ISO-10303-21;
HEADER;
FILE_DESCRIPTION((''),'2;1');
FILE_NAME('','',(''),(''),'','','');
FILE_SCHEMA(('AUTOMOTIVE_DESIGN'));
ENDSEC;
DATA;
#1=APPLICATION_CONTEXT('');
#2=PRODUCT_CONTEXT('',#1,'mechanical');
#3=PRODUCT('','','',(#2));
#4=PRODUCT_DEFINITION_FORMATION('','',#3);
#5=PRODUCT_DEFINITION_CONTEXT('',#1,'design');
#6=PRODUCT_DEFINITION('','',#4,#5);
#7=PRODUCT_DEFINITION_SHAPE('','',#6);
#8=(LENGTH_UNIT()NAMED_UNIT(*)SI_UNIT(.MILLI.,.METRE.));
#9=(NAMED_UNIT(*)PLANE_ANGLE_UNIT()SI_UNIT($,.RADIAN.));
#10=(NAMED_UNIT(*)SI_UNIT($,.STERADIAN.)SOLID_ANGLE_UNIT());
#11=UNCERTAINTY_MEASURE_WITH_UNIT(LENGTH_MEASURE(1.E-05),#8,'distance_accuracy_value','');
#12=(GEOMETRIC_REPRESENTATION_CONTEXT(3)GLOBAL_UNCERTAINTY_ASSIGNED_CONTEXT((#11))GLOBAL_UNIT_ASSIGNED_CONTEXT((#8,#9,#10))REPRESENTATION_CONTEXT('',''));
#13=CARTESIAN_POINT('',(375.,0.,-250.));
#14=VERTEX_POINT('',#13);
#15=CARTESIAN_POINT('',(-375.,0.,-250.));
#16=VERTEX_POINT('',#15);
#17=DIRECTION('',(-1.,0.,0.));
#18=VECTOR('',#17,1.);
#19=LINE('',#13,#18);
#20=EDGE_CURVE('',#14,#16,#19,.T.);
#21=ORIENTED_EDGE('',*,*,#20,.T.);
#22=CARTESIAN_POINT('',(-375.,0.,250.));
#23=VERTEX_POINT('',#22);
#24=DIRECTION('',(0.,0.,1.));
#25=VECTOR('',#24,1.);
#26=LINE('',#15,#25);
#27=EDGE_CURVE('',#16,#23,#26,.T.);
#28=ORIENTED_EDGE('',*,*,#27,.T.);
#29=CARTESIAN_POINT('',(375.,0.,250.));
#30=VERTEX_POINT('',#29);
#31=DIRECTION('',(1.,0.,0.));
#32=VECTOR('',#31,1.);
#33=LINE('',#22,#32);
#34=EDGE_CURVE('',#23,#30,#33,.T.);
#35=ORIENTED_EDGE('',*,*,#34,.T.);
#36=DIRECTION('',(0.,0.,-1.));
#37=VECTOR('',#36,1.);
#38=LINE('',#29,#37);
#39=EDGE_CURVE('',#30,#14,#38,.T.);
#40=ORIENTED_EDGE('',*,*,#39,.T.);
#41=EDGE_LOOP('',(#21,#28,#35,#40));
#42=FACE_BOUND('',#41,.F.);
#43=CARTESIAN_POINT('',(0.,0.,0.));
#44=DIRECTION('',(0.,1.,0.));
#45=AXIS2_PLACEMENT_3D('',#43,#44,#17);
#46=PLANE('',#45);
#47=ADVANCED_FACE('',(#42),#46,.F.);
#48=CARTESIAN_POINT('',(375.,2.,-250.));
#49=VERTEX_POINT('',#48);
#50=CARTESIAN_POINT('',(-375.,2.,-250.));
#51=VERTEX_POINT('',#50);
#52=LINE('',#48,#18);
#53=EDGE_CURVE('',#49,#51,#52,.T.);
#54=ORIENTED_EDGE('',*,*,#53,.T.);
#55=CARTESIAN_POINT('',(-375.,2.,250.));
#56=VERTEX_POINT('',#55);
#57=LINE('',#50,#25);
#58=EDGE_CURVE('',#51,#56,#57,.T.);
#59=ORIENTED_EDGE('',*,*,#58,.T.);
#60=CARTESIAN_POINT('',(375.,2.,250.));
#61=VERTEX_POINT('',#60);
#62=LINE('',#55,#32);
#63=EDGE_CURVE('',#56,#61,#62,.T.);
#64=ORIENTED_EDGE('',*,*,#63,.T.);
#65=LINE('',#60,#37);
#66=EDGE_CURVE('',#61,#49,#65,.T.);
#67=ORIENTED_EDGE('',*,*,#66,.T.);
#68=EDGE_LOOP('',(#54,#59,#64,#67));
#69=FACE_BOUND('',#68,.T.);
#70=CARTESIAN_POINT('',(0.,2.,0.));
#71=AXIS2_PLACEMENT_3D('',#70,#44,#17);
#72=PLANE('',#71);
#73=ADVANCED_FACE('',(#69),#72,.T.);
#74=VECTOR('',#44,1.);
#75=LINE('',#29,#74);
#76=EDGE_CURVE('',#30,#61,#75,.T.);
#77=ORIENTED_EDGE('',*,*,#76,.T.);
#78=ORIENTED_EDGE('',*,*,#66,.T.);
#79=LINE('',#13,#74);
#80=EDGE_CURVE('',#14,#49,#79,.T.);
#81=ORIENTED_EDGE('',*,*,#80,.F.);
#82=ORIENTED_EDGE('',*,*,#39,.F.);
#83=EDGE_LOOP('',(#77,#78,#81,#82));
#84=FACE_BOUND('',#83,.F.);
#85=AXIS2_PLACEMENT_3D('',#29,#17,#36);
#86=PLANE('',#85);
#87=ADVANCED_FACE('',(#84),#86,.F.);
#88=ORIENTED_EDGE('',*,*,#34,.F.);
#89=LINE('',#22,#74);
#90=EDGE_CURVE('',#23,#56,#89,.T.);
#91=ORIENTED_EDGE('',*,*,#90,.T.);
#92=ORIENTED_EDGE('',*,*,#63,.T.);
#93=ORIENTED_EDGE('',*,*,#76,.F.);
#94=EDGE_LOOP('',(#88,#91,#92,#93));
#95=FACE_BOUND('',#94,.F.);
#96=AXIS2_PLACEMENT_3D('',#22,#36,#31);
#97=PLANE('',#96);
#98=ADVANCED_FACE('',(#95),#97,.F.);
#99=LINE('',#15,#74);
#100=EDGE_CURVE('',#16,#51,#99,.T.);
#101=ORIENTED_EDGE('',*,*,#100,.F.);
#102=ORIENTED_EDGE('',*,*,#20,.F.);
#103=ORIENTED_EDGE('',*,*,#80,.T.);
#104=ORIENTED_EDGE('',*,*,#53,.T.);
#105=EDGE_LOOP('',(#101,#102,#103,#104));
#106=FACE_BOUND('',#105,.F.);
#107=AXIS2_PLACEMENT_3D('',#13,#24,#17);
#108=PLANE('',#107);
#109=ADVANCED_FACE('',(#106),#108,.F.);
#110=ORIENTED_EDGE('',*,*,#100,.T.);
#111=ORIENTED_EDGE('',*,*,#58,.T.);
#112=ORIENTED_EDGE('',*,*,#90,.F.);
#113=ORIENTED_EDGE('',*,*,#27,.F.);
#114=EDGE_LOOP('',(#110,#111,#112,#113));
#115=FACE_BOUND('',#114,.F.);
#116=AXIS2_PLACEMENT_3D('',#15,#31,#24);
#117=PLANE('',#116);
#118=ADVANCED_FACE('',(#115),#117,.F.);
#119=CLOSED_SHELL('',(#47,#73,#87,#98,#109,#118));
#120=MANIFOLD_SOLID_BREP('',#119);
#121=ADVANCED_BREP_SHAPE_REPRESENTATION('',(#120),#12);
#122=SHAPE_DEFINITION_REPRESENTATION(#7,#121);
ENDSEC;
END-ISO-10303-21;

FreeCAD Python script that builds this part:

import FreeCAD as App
import Part
import Sketcher
from FreeCAD import Vector

doc = App.newDocument("Part")
params = doc.addObject("Spreadsheet::Sheet", "Params")
for row, (alias, value) in enumerate([
    ("sketch1_width", "750 mm"),
    ("sketch1_height", "500 mm"),
    ("pad1_length", "2 mm"),
], start=1):
    params.set(f"A{row}", alias)
    params.set(f"B{row}", "=" + value)
    params.setAlias(f"B{row}", alias)

body = doc.addObject("PartDesign::Body", "Body")

# Sketch on XZ plane
sketch1 = body.newObject("Sketcher::SketchObject", "Sketch")
sketch1.AttachmentSupport = (doc.getObject("XZ_Plane"), [""])
sketch1.MapMode = "FlatFace"
sketch1.addGeometry([
    Part.LineSegment(Vector(375, 250, 0), Vector(375, -250, 0)),
    Part.LineSegment(Vector(375, -250, 0), Vector(-375, -250, 0)),
    Part.LineSegment(Vector(-375, -250, 0), Vector(-375, 250, 0)),
    Part.LineSegment(Vector(-375, 250, 0), Vector(375, 250, 0)),
], False)
sketch1.addConstraint([
    Sketcher.Constraint("Coincident", 0, 2, 1, 1),
    Sketcher.Constraint("Coincident", 1, 2, 2, 1),
    Sketcher.Constraint("Coincident", 2, 2, 3, 1),
    Sketcher.Constraint("Coincident", 3, 2, 0, 1),
    Sketcher.Constraint("Vertical", 0),
    Sketcher.Constraint("Horizontal", 1),
    Sketcher.Constraint("Vertical", 2),
    Sketcher.Constraint("Horizontal", 3),
    Sketcher.Constraint("Symmetric", 0, 2, 2, 2, -1, 1),
    Sketcher.Constraint("DistanceX", 1, 2, 1, 1, 750.0),
    Sketcher.Constraint("DistanceY", 0, 2, 0, 1, 500.0),
])
sketch1.setExpression("Constraints[9]", "Params.sketch1_width")
sketch1.setExpression("Constraints[10]", "Params.sketch1_height")
pad1 = body.newObject("PartDesign::Pad", "Pad")
pad1.Profile = sketch1
pad1.setExpression("Length", "Params.pad1_length")
pad1.Reversed = True

doc.recompute()
